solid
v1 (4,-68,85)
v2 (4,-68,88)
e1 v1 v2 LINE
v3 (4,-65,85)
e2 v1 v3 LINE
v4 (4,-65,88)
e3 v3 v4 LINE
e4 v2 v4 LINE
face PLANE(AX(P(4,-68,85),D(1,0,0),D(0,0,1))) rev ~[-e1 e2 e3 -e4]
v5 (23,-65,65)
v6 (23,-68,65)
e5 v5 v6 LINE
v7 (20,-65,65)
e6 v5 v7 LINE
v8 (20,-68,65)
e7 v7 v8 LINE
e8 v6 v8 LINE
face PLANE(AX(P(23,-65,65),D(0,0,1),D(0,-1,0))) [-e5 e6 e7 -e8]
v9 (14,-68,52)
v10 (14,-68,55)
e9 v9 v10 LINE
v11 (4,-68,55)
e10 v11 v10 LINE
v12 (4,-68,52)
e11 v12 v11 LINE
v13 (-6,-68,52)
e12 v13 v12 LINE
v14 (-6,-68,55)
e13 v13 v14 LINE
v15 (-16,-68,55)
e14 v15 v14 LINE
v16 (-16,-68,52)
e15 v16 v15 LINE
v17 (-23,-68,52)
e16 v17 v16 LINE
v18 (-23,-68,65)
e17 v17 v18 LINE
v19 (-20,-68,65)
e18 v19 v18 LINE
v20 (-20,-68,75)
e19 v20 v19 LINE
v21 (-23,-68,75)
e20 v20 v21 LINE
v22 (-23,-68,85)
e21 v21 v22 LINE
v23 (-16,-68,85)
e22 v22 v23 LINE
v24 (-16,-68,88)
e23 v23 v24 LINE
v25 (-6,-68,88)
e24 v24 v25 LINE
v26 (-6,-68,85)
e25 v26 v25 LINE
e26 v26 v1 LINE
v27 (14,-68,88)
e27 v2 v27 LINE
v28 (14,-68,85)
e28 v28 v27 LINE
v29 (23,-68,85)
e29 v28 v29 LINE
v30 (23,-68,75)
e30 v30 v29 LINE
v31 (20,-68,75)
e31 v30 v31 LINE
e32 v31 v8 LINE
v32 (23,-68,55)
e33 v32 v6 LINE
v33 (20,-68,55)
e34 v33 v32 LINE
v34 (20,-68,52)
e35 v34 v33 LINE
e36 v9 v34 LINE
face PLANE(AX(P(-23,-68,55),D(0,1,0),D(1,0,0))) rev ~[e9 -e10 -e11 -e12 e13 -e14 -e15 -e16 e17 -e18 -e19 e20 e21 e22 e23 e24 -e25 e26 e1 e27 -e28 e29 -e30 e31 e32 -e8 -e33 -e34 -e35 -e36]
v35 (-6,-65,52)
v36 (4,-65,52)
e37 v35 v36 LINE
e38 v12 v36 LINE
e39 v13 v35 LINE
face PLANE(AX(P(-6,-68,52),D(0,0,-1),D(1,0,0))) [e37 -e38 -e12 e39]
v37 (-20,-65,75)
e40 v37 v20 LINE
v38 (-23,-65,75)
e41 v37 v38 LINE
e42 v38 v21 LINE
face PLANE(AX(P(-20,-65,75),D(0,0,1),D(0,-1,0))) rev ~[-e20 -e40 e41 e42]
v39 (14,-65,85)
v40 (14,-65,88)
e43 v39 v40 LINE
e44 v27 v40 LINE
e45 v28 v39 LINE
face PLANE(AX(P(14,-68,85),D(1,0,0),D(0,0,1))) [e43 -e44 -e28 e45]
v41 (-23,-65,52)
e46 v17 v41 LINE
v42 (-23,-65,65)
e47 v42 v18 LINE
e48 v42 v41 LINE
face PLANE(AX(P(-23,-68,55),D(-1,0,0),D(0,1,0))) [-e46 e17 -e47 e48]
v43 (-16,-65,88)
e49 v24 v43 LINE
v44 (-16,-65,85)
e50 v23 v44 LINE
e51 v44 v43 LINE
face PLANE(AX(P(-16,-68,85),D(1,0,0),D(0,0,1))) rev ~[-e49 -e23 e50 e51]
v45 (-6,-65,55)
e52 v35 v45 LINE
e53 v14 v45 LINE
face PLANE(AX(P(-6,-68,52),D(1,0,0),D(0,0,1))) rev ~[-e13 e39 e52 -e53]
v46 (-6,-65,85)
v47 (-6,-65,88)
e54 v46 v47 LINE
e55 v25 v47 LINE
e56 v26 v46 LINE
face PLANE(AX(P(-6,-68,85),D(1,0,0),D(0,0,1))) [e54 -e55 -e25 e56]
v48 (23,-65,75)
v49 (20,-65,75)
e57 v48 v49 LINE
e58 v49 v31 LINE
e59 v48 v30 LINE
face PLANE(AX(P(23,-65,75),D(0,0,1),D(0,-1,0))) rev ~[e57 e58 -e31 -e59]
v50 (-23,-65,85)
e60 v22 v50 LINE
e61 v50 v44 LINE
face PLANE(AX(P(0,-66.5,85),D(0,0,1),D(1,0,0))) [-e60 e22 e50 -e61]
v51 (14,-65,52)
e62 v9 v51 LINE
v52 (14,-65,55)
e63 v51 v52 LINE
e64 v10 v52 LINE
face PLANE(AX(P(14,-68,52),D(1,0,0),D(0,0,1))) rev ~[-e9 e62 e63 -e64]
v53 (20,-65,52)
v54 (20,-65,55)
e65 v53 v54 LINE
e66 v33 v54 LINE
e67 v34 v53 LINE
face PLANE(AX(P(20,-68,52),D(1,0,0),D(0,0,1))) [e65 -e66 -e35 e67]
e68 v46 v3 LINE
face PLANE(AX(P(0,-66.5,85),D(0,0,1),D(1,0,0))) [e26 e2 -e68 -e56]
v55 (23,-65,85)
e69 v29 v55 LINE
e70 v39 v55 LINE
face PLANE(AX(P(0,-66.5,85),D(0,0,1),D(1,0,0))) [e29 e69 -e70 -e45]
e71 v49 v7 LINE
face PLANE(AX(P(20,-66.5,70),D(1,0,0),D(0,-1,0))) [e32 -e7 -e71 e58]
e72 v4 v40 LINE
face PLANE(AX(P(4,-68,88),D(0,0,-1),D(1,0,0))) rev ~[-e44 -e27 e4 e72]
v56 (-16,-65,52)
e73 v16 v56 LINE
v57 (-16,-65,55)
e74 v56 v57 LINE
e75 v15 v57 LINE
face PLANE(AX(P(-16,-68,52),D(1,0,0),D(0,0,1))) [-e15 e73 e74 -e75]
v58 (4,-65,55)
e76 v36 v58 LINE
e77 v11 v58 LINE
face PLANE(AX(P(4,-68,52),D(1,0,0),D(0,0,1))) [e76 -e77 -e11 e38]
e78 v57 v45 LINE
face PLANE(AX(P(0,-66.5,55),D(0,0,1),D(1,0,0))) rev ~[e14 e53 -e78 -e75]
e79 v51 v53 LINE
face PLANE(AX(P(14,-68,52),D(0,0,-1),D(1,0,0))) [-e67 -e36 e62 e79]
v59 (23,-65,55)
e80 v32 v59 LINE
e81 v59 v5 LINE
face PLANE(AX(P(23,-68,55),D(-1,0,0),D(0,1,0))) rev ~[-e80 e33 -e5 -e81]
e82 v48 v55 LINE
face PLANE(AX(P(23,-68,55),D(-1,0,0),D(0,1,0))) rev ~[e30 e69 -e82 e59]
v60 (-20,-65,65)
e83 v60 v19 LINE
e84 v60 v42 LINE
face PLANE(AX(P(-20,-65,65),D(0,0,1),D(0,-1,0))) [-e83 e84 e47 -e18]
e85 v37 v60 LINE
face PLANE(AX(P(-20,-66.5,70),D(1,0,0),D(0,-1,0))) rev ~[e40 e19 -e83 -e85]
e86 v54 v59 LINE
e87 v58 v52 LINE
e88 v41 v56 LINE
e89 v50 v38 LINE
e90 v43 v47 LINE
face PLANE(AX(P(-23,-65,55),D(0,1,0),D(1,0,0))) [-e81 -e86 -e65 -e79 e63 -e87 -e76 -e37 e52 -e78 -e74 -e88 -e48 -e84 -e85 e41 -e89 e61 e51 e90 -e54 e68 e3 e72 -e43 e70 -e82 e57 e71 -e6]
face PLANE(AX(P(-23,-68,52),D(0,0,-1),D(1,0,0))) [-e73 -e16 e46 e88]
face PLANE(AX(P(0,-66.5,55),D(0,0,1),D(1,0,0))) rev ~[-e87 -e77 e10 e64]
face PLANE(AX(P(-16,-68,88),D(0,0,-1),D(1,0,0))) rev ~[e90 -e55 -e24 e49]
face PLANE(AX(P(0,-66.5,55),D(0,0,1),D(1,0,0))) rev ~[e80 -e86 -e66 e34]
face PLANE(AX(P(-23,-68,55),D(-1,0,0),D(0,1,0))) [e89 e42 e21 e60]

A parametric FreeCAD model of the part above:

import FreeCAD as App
import Part
import Sketcher
from FreeCAD import Vector


def add_polygon(sketch, points):
    """Adds a closed chain of lines whose ends are joined by coincident constraints."""
    first, n = sketch.GeometryCount, len(points)
    for a, b in zip(points, points[1:] + points[:1]):
        sketch.addGeometry(Part.LineSegment(App.Vector(*a, 0), App.Vector(*b, 0)), False)
    for i in range(n):
        sketch.addConstraint(Sketcher.Constraint("Coincident", first + i, 2, first + (i + 1) % n, 1))

doc = App.newDocument("Part")
body = doc.addObject("PartDesign::Body", "Body")

# Sketch on YZ plane
sketch1 = body.newObject("Sketcher::SketchObject", "Sketch")
sketch1.AttachmentSupport = (doc.getObject("YZ_Plane"), [""])
sketch1.MapMode = "FlatFace"
sketch1.AttachmentOffset = App.Placement(Vector(0, 0, 24), App.Rotation())
add_polygon(sketch1, [(-65, 65), (-65, 75), (-68, 75), (-68, 65)])  # lines 0-3
sketch1.addConstraint([
    Sketcher.Constraint("Vertical", 0),
    Sketcher.Constraint("Horizontal", 1),
    Sketcher.Constraint("Vertical", 2),
    Sketcher.Constraint("Horizontal", 3),
    Sketcher.Constraint("DistanceX", 1, 2, 1, 1, 3.0),
    Sketcher.Constraint("DistanceY", 0, 1, 0, 2, 10.0),
    Sketcher.Constraint("DistanceX", 0, 2, -1, 1, 65.0),
    Sketcher.Constraint("DistanceY", -1, 1, 0, 2, 75.0),
])
pad1 = body.newObject("PartDesign::Pad", "Pad")
pad1.Profile = sketch1
pad1.Length = 3
pad1.Reversed = True
body2 = doc.addObject("PartDesign::Body", "Body001")
doc.recompute()

body.Placement = App.Placement(Vector(-44, 0, 0), App.Rotation(Vector(0, 0, 1), 0))
boolean = body2.newObject("PartDesign::Boolean", "Boolean")
boolean.Type = "Fuse"
boolean.addObjects([body])
body3 = doc.addObject("PartDesign::Body", "Body002")

# Sketch on YZ plane
sketch2 = body3.newObject("Sketcher::SketchObject", "Sketch001")
sketch2.AttachmentSupport = (doc.getObject("YZ_Plane002"), [""])
sketch2.MapMode = "FlatFace"
sketch2.AttachmentOffset = App.Placement(Vector(0, 0, 24), App.Rotation())
add_polygon(sketch2, [(-65, 65), (-65, 75), (-68, 75), (-68, 65)])  # lines 0-3
sketch2.addConstraint([
    Sketcher.Constraint("Vertical", 0),
    Sketcher.Constraint("Horizontal", 1),
    Sketcher.Constraint("Vertical", 2),
    Sketcher.Constraint("Horizontal", 3),
    Sketcher.Constraint("DistanceX", 1, 2, 1, 1, 3.0),
    Sketcher.Constraint("DistanceY", 0, 1, 0, 2, 10.0),
    Sketcher.Constraint("DistanceX", 0, 2, -1, 1, 65.0),
    Sketcher.Constraint("DistanceY", -1, 1, 0, 2, 75.0),
])
pad2 = body3.newObject("PartDesign::Pad", "Pad001")
pad2.Profile = sketch2
pad2.Length = 3
pad2.Reversed = True
body4 = doc.addObject("PartDesign::Body", "Body003")
body4.AllowCompound = True
doc.recompute()

body3.Placement = App.Placement(Vector(-1, 0, 0), App.Rotation(Vector(0, 0, 1), 0))
boolean2 = body4.newObject("PartDesign::Boolean", "Boolean001")
boolean2.Type = "Fuse"
boolean2.addObjects([body3])
doc.recompute()

boolean3 = body4.newObject("PartDesign::Boolean", "Boolean002")
boolean3.Type = "Fuse"
boolean3.addObjects([body2])
body5 = doc.addObject("PartDesign::Body", "Body004")

# Sketch on XY plane
sketch3 = body5.newObject("Sketcher::SketchObject", "Sketch002")
sketch3.AttachmentSupport = (doc.getObject("XY_Plane004"), [""])
sketch3.MapMode = "FlatFace"
add_polygon(sketch3, [(-7, 0), (-7, -3), (0, -3), (0, 0)])  # lines 0-3
sketch3.addConstraint([
    Sketcher.Constraint("Vertical", 0),
    Sketcher.Constraint("Horizontal", 1),
    Sketcher.Constraint("Vertical", 2),
    Sketcher.Constraint("Horizontal", 3),
    Sketcher.Constraint("Coincident", 2, 2, -1, 1),
    Sketcher.Constraint("DistanceX", 1, 1, 1, 2, 7.0),
    Sketcher.Constraint("DistanceY", 0, 2, 0, 1, 3.0),
])
pad3 = body5.newObject("PartDesign::Pad", "Pad002")
pad3.Profile = sketch3
pad3.Length = 3
pad3.Reversed = True
body6 = doc.addObject("PartDesign::Body", "Body005")
doc.recompute()

body5.Placement = App.Placement(Vector(0, 0, 0), App.Rotation(Vector(1, 0, 0), 90))
boolean4 = body6.newObject("PartDesign::Boolean", "Boolean003")
boolean4.Type = "Fuse"
boolean4.addObjects([body5])
body7 = doc.addObject("PartDesign::Body", "Body006")
doc.recompute()

body6.Placement = App.Placement(Vector(-16, -68, 55), App.Rotation(Vector(0, 0, 1), 0))
boolean5 = body7.newObject("PartDesign::Boolean", "Boolean004")
boolean5.Type = "Fuse"
boolean5.addObjects([body6])
body8 = doc.addObject("PartDesign::Body", "Body007")

# Sketch on XY plane
sketch4 = body8.newObject("Sketcher::SketchObject", "Sketch003")
sketch4.AttachmentSupport = (doc.getObject("XY_Plane007"), [""])
sketch4.MapMode = "FlatFace"
add_polygon(sketch4, [(-10, 0), (-10, -3), (0, -3), (0, 0)])  # lines 0-3
sketch4.addConstraint([
    Sketcher.Constraint("Vertical", 0),
    Sketcher.Constraint("Horizontal", 1),
    Sketcher.Constraint("Vertical", 2),
    Sketcher.Constraint("Horizontal", 3),
    Sketcher.Constraint("Coincident", 2, 2, -1, 1),
    Sketcher.Constraint("DistanceX", 1, 1, 1, 2, 10.0),
    Sketcher.Constraint("DistanceY", 0, 2, 0, 1, 3.0),
])
pad4 = body8.newObject("PartDesign::Pad", "Pad003")
pad4.Profile = sketch4
pad4.Length = 3
pad4.Reversed = True
body9 = doc.addObject("PartDesign::Body", "Body008")
doc.recompute()

body8.Placement = App.Placement(Vector(0, 0, 0), App.Rotation(Vector(1, 0, 0), 90))
boolean6 = body9.newObject("PartDesign::Boolean", "Boolean005")
boolean6.Type = "Fuse"
boolean6.addObjects([body8])
body10 = doc.addObject("PartDesign::Body", "Body009")
doc.recompute()

body9.Placement = App.Placement(Vector(4, -68, 55), App.Rotation(Vector(0, 0, 1), 0))
boolean7 = body10.newObject("PartDesign::Boolean", "Boolean006")
boolean7.Type = "Fuse"
boolean7.addObjects([body9])
body11 = doc.addObject("PartDesign::Body", "Body010")

# Sketch on XY plane
sketch5 = body11.newObject("Sketcher::SketchObject", "Sketch004")
sketch5.AttachmentSupport = (doc.getObject("XY_Plane010"), [""])
sketch5.MapMode = "FlatFace"
add_polygon(sketch5, [(-6, 0), (-6, -3), (0, -3), (0, 0)])  # lines 0-3
sketch5.addConstraint([
    Sketcher.Constraint("Vertical", 0),
    Sketcher.Constraint("Horizontal", 1),
    Sketcher.Constraint("Vertical", 2),
    Sketcher.Constraint("Horizontal", 3),
    Sketcher.Constraint("Coincident", 2, 2, -1, 1),
    Sketcher.Constraint("DistanceX", 1, 1, 1, 2, 6.0),
    Sketcher.Constraint("DistanceY", 0, 2, 0, 1, 3.0),
])
pad5 = body11.newObject("PartDesign::Pad", "Pad004")
pad5.Profile = sketch5
pad5.Length = 3
pad5.Reversed = True
body12 = doc.addObject("PartDesign::Body", "Body011")
doc.recompute()

body11.Placement = App.Placement(Vector(0, 0, 0), App.Rotation(Vector(1, 0, 0), 90))
boolean8 = body12.newObject("PartDesign::Boolean", "Boolean007")
boolean8.Type = "Fuse"
boolean8.addObjects([body11])
body13 = doc.addObject("PartDesign::Body", "Body012")
body13.AllowCompound = True
doc.recompute()

body12.Placement = App.Placement(Vector(20, -68, 55), App.Rotation(Vector(0, 0, 1), 0))
boolean9 = body13.newObject("PartDesign::Boolean", "Boolean008")
boolean9.Type = "Fuse"
boolean9.addObjects([body12])
doc.recompute()

boolean10 = body13.newObject("PartDesign::Boolean", "Boolean009")
boolean10.Type = "Fuse"
boolean10.addObjects([body7])
doc.recompute()

boolean11 = body13.newObject("PartDesign::Boolean", "Boolean010")
boolean11.Type = "Fuse"
boolean11.addObjects([body10])
body14 = doc.addObject("PartDesign::Body", "Body013")

# Sketch on XY plane
sketch6 = body14.newObject("Sketcher::SketchObject", "Sketch005")
sketch6.AttachmentSupport = (doc.getObject("XY_Plane013"), [""])
sketch6.MapMode = "FlatFace"
sketch6.AttachmentOffset = App.Placement(Vector(0, 0, 55), App.Rotation())
add_polygon(sketch6, [(-23, -65), (-23, -68), (23, -68), (23, -65)])  # lines 0-3
sketch6.addConstraint([
    Sketcher.Constraint("Vertical", 0),
    Sketcher.Constraint("Horizontal", 1),
    Sketcher.Constraint("Vertical", 2),
    Sketcher.Constraint("Horizontal", 3),
    Sketcher.Constraint("DistanceX", 1, 1, 1, 2, 46.0),
    Sketcher.Constraint("DistanceY", 0, 2, 0, 1, 3.0),
    Sketcher.Constraint("DistanceX", 0, 2, -1, 1, 23.0),
    Sketcher.Constraint("DistanceY", 0, 2, -1, 1, 68.0),
])
pad6 = body14.newObject("PartDesign::Pad", "Pad005")
pad6.Profile = sketch6
pad6.Length = 30
body15 = doc.addObject("PartDesign::Body", "Body014")

# Sketch on XY plane
sketch7 = body15.newObject("Sketcher::SketchObject", "Sketch006")
sketch7.AttachmentSupport = (doc.getObject("XY_Plane014"), [""])
sketch7.MapMode = "FlatFace"
add_polygon(sketch7, [(-10, 0), (-10, -3), (0, -3), (0, 0)])  # lines 0-3
sketch7.addConstraint([
    Sketcher.Constraint("Vertical", 0),
    Sketcher.Constraint("Horizontal", 1),
    Sketcher.Constraint("Vertical", 2),
    Sketcher.Constraint("Horizontal", 3),
    Sketcher.Constraint("Coincident", 2, 2, -1, 1),
    Sketcher.Constraint("DistanceX", 1, 1, 1, 2, 10.0),
    Sketcher.Constraint("DistanceY", 0, 2, 0, 1, 3.0),
])
pad7 = body15.newObject("PartDesign::Pad", "Pad006")
pad7.Profile = sketch7
pad7.Length = 3
pad7.Reversed = True
body16 = doc.addObject("PartDesign::Body", "Body015")
doc.recompute()

body15.Placement = App.Placement(Vector(0, 0, 0), App.Rotation(Vector(1, 0, 0), 90))
boolean12 = body16.newObject("PartDesign::Boolean", "Boolean011")
boolean12.Type = "Fuse"
boolean12.addObjects([body15])
body17 = doc.addObject("PartDesign::Body", "Body016")
doc.recompute()

body16.Placement = App.Placement(Vector(-6, -68, 55), App.Rotation(Vector(0, 0, 1), 0))
boolean13 = body17.newObject("PartDesign::Boolean", "Boolean012")
boolean13.Type = "Fuse"
boolean13.addObjects([body16])
body18 = doc.addObject("PartDesign::Body", "Body017")

# Sketch on XY plane
sketch8 = body18.newObject("Sketcher::SketchObject", "Sketch007")
sketch8.AttachmentSupport = (doc.getObject("XY_Plane017"), [""])
sketch8.MapMode = "FlatFace"
add_polygon(sketch8, [(-10, 0), (-10, -3), (0, -3), (0, 0)])  # lines 0-3
sketch8.addConstraint([
    Sketcher.Constraint("Vertical", 0),
    Sketcher.Constraint("Horizontal", 1),
    Sketcher.Constraint("Vertical", 2),
    Sketcher.Constraint("Horizontal", 3),
    Sketcher.Constraint("Coincident", 2, 2, -1, 1),
    Sketcher.Constraint("DistanceX", 1, 1, 1, 2, 10.0),
    Sketcher.Constraint("DistanceY", 0, 2, 0, 1, 3.0),
])
pad8 = body18.newObject("PartDesign::Pad", "Pad007")
pad8.Profile = sketch8
pad8.Length = 3
pad8.Reversed = True
body19 = doc.addObject("PartDesign::Body", "Body018")
doc.recompute()

body18.Placement = App.Placement(Vector(0, 0, 0), App.Rotation(Vector(1, 0, 0), 90))
boolean14 = body19.newObject("PartDesign::Boolean", "Boolean013")
boolean14.Type = "Fuse"
boolean14.addObjects([body18])
body20 = doc.addObject("PartDesign::Body", "Body019")
body20.AllowCompound = True
doc.recompute()

body19.Placement = App.Placement(Vector(14, -68, 55), App.Rotation(Vector(0, 0, 1), 0))
boolean15 = body20.newObject("PartDesign::Boolean", "Boolean014")
boolean15.Type = "Fuse"
boolean15.addObjects([body19])
doc.recompute()

boolean16 = body20.newObject("PartDesign::Boolean", "Boolean015")
boolean16.Type = "Fuse"
boolean16.addObjects([body17])
body21 = doc.addObject("PartDesign::Body", "Body020")
body21.AllowCompound = True
doc.recompute()

body20.Placement = App.Placement(Vector(0, 0, 33), App.Rotation(Vector(0, 0, 1), 0))
boolean17 = body21.newObject("PartDesign::Boolean", "Boolean016")
boolean17.Type = "Fuse"
boolean17.addObjects([body20])
doc.recompute()

boolean18 = body21.newObject("PartDesign::Boolean", "Boolean017")
boolean18.Type = "Fuse"
boolean18.addObjects([body13])
doc.recompute()

boolean19 = body21.newObject("PartDesign::Boolean", "Boolean018")
boolean19.Type = "Fuse"
boolean19.addObjects([body14])
doc.recompute()

boolean20 = body21.newObject("PartDesign::Boolean", "Boolean019")
boolean20.Type = "Cut"
boolean20.addObjects([body4])

doc.recompute()
